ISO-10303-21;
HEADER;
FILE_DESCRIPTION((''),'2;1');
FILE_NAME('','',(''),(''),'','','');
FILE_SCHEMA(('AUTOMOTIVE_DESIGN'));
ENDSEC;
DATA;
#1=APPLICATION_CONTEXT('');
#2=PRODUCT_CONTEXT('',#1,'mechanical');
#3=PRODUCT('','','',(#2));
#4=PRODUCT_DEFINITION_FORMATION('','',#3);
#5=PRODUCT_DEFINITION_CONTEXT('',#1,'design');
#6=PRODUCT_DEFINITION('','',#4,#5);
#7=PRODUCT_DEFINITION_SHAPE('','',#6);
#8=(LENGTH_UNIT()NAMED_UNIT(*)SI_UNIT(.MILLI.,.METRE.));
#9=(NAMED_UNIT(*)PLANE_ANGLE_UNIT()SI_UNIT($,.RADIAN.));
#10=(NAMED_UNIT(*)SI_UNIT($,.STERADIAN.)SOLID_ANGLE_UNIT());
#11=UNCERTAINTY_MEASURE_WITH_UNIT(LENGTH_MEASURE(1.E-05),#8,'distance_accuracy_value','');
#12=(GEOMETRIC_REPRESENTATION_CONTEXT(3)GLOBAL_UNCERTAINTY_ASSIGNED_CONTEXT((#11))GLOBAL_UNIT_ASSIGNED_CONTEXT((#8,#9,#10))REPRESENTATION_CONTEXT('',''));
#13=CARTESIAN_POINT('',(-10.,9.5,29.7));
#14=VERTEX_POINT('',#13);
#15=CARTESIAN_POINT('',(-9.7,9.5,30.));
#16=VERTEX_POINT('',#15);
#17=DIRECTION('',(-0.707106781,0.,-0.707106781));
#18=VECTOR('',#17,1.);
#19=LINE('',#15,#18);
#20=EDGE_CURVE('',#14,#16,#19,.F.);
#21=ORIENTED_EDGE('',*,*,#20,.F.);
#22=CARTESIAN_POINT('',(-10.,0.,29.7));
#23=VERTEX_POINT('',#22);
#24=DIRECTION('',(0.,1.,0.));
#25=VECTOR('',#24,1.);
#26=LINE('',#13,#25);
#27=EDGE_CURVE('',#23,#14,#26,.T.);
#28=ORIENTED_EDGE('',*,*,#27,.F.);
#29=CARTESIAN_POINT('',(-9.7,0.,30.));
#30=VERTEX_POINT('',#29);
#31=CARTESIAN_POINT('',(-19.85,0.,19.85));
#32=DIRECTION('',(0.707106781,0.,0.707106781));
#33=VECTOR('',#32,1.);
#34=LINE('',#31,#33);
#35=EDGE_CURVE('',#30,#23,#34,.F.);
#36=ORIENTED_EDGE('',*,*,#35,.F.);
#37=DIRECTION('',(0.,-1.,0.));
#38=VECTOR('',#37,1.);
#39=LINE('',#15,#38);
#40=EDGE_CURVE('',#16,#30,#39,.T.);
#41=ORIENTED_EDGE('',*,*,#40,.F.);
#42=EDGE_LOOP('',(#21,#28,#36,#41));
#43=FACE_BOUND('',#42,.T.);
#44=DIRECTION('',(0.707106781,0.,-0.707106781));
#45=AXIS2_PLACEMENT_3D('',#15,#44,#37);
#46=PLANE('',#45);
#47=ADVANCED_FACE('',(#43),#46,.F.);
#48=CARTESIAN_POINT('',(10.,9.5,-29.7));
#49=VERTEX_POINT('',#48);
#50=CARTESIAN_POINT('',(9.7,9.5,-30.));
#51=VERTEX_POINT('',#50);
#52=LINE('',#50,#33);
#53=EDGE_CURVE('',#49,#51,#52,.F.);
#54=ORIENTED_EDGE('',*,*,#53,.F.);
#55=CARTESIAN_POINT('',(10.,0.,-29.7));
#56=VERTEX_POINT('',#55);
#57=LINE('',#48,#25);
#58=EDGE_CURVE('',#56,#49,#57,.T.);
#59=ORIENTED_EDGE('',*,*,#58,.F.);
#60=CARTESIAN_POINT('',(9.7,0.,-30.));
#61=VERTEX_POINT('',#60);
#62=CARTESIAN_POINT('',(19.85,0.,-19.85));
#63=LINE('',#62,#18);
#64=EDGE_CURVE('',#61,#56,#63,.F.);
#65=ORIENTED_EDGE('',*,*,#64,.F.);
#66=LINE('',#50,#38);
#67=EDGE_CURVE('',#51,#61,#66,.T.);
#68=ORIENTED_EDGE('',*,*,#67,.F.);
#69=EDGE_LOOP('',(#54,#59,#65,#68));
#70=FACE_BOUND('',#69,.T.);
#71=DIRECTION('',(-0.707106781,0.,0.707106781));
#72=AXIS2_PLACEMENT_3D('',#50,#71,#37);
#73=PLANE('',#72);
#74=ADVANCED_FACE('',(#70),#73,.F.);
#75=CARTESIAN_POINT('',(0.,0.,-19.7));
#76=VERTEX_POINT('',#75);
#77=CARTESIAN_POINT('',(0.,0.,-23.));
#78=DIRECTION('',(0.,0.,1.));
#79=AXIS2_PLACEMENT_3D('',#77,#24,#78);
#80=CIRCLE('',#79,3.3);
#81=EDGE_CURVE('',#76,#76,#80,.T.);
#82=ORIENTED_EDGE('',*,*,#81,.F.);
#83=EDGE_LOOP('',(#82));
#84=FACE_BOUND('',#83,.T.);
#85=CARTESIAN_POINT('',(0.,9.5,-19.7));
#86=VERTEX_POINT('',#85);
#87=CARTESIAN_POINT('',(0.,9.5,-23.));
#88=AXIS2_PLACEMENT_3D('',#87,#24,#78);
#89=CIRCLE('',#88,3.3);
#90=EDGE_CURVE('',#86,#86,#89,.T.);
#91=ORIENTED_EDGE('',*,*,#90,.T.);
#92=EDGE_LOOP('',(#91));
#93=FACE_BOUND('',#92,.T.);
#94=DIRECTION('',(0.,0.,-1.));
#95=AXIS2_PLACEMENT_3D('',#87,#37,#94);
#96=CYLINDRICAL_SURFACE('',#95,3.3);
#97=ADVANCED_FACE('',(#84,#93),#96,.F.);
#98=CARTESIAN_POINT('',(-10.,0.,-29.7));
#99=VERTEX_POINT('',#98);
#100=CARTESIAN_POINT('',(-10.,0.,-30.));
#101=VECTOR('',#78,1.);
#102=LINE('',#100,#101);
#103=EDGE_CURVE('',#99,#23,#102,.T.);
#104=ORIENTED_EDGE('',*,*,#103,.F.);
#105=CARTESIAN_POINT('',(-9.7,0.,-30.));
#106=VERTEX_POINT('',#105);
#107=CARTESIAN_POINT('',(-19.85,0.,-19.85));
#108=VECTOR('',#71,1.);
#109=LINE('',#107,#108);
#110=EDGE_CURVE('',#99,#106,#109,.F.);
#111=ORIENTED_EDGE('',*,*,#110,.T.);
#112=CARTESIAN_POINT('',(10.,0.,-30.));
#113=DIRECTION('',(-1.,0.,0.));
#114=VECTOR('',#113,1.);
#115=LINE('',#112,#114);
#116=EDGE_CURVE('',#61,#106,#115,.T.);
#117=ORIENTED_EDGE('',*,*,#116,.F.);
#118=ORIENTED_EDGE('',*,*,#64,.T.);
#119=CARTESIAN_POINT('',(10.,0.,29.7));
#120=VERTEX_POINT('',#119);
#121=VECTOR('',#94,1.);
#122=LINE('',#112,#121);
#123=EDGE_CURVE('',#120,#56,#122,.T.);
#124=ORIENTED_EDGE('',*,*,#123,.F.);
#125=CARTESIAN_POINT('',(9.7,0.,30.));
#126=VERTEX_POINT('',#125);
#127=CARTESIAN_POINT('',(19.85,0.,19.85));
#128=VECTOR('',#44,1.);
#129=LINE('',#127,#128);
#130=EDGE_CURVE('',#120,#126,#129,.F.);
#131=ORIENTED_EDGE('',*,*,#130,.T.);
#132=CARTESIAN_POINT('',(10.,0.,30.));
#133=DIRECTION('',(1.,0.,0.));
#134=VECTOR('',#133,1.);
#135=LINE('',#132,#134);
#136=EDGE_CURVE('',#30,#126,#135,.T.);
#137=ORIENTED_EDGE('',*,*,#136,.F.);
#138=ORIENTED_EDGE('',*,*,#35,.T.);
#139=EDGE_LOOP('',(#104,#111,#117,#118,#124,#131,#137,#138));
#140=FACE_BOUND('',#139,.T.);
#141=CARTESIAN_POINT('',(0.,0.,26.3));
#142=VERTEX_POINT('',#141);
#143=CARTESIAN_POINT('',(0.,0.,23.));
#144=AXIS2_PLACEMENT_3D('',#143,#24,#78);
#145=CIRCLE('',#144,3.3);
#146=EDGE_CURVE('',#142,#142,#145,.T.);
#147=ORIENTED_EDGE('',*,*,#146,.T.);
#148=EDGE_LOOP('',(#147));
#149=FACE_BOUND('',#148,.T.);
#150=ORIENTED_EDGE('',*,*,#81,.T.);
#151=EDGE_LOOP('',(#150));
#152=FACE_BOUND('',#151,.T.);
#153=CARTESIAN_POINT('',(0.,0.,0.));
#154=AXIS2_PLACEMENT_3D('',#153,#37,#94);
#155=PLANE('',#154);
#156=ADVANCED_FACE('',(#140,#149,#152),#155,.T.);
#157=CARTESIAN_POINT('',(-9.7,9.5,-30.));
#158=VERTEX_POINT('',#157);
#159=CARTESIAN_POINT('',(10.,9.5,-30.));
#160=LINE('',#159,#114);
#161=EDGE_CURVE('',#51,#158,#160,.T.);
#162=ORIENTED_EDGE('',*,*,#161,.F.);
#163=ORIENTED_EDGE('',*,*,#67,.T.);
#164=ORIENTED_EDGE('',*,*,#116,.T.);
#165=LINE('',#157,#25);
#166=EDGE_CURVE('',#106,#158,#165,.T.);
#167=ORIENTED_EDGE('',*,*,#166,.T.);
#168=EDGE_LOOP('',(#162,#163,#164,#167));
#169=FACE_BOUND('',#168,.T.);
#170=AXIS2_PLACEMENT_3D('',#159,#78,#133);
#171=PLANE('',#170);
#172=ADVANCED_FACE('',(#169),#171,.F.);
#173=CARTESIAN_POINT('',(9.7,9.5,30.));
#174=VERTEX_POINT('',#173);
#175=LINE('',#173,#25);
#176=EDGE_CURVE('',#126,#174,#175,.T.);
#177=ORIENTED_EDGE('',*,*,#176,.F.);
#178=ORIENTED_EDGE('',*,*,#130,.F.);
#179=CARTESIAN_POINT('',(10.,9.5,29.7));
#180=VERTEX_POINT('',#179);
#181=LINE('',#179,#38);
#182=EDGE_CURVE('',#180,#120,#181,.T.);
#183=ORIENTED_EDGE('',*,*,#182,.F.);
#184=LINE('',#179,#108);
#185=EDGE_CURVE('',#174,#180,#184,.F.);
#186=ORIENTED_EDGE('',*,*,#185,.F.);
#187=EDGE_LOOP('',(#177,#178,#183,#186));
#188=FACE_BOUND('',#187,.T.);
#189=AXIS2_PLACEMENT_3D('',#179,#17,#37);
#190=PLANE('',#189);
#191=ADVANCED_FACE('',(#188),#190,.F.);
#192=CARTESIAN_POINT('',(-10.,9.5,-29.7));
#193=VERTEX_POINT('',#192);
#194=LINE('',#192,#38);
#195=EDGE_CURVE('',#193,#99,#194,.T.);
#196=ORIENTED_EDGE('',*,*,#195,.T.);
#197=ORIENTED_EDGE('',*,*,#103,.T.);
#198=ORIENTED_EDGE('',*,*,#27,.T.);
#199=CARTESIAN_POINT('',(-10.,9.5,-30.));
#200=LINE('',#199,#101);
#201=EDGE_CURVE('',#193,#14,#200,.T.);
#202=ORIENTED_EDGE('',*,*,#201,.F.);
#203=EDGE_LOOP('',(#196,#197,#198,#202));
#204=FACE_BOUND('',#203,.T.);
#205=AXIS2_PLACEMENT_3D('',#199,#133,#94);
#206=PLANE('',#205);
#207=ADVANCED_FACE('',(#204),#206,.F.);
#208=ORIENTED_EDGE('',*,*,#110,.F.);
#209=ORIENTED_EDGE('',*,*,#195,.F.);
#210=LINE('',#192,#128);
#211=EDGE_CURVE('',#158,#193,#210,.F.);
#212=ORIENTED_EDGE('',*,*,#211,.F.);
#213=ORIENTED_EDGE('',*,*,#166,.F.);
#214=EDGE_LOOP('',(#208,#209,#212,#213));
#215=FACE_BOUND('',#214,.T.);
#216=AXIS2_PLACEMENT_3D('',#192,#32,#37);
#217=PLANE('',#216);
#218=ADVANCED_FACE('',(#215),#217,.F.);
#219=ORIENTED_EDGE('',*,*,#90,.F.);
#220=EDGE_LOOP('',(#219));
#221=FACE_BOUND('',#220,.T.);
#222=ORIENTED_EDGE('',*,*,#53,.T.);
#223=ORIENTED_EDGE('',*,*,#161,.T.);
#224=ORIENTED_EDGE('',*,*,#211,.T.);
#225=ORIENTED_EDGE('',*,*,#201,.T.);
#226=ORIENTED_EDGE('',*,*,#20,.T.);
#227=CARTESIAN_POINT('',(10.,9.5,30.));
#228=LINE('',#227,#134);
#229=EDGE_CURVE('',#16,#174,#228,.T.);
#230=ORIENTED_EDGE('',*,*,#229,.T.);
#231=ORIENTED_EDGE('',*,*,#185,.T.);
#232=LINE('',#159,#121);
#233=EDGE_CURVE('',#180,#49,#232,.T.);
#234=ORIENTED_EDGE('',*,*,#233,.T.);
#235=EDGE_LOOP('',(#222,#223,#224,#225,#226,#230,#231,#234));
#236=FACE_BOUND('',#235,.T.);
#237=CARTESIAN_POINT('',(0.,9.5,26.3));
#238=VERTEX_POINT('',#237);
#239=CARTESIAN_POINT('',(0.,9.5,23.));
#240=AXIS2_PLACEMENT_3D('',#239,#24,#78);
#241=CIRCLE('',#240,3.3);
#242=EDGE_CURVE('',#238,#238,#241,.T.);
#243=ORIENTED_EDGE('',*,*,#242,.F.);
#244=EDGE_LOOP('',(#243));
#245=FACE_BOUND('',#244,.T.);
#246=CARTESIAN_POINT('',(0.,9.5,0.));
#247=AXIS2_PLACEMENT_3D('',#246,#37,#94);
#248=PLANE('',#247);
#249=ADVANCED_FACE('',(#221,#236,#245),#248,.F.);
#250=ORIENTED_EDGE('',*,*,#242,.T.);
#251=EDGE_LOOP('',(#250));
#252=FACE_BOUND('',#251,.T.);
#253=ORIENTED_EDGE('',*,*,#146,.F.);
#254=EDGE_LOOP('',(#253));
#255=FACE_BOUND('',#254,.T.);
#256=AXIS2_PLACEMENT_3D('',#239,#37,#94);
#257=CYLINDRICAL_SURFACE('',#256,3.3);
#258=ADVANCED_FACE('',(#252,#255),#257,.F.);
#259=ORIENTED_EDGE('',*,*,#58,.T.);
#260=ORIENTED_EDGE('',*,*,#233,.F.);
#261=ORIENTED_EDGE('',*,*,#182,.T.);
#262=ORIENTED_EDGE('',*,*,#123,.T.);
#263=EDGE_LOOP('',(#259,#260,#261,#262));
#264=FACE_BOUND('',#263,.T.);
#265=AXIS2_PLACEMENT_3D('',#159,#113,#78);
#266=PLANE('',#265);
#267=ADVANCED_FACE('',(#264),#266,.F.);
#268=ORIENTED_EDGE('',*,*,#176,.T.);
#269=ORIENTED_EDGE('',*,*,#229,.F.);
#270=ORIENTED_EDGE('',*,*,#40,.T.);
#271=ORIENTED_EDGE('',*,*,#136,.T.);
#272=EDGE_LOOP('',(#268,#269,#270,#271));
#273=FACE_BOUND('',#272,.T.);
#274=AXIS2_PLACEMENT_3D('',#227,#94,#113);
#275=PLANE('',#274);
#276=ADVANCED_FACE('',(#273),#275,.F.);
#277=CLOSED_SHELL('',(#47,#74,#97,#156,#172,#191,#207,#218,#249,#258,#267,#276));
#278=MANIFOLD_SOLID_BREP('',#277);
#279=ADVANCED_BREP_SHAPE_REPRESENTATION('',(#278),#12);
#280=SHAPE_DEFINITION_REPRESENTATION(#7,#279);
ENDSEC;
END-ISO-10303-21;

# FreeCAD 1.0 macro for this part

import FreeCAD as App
import Part
import Sketcher

V = App.Vector
Q = App.Units.Quantity


def edges_at(feature, points):
    """Names of the edges that pass closest to the given points."""
    edges = feature.Shape.Edges
    near = lambda p: min(range(len(edges)), key=lambda i: edges[i].distToShape(Part.Vertex(*p))[0])
    return sorted({f"Edge{near(p) + 1}" for p in points})

doc = App.newDocument("Part")
body = doc.addObject("PartDesign::Body", "Body")

sketch1 = doc.addObject("Sketcher::SketchObject", "Sketch")
body.addObject(sketch1)
sketch1.AttachmentSupport = (doc.XZ_Plane, [""])
sketch1.MapMode = "FlatFace"
sketch1.addGeometry(Part.LineSegment(V(-10, -30, 0), V(-10, 30, 0)), False)
sketch1.addGeometry(Part.LineSegment(V(-10, 30, 0), V(10, 30, 0)), False)
sketch1.addGeometry(Part.LineSegment(V(10, 30, 0), V(10, -30, 0)), False)
sketch1.addGeometry(Part.LineSegment(V(10, -30, 0), V(-10, -30, 0)), False)
sketch1.addGeometry(Part.Circle(V(0, 23, 0), V(0, 0, 1), 3.3), False)
sketch1.addGeometry(Part.Circle(V(0, -23, 0), V(0, 0, 1), 3.3), False)
sketch1.addConstraint(Sketcher.Constraint("Coincident", 0, 2, 1, 1))
sketch1.addConstraint(Sketcher.Constraint("Coincident", 1, 2, 2, 1))
sketch1.addConstraint(Sketcher.Constraint("Coincident", 2, 2, 3, 1))
sketch1.addConstraint(Sketcher.Constraint("Coincident", 3, 2, 0, 1))
sketch1.addConstraint(Sketcher.Constraint("Vertical", 0))
sketch1.addConstraint(Sketcher.Constraint("Horizontal", 1))
sketch1.addConstraint(Sketcher.Constraint("Vertical", 2))
sketch1.addConstraint(Sketcher.Constraint("Horizontal", 3))
sketch1.addConstraint(Sketcher.Constraint("Equal", 4, 5))
sketch1.addConstraint(Sketcher.Constraint("Symmetric", 4, 3, 5, 3, -1, 1))
sketch1.addConstraint(Sketcher.Constraint("Symmetric", 0, 2, 2, 2, -1, 1))
sketch1.addConstraint(Sketcher.Constraint("PointOnObject", 4, 3, -2))
sketch1.addConstraint(Sketcher.Constraint("Diameter", 4, Q("6.6 mm")))
sketch1.addConstraint(Sketcher.Constraint("DistanceX", 1, 1, 1, 2, Q("20 mm")))
sketch1.addConstraint(Sketcher.Constraint("DistanceY", 0, 1, 0, 2, Q("60 mm")))
sketch1.addConstraint(Sketcher.Constraint("DistanceY", -1, 1, 4, 3, Q("23 mm")))
pad1 = doc.addObject("PartDesign::Pad", "Pad")
body.addObject(pad1)
pad1.Profile = sketch1
pad1.Length = 9.5
pad1.Reversed = True
doc.recompute()

chamfer = doc.addObject("PartDesign::Chamfer", "Chamfer")
body.addObject(chamfer)
chamfer.Base = (pad1, edges_at(pad1, [
    (-10, 4.75, -30),
    (10, 4.75, -30),
    (10, 4.75, 30),
    (-10, 4.75, 30),
]))
chamfer.Size = 0.3

doc.recompute()
